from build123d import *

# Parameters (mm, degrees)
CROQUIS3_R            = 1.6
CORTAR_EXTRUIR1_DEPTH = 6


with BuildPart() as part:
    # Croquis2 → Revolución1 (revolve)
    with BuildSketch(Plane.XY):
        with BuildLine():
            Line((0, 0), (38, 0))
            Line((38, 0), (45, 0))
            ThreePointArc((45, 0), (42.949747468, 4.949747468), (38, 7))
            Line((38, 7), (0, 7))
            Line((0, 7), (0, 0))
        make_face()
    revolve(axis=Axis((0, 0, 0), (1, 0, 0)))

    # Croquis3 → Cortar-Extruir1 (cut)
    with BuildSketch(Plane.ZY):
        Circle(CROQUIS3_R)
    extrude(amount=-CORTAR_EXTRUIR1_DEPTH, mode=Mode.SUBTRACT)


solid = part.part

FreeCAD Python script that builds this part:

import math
import FreeCAD as App
import Part
import Sketcher

V = App.Vector

doc = App.newDocument("Part")
body = doc.addObject("PartDesign::Body", "Body")

sketch1 = doc.addObject("Sketcher::SketchObject", "Sketch")
body.addObject(sketch1)
sketch1.AttachmentSupport = (doc.XY_Plane, [""])
sketch1.MapMode = "FlatFace"
sketch1.addGeometry([
    Part.LineSegment(V(0, 0, 0), V(45, 0, 0)),
    Part.ArcOfCircle(Part.Circle(V(38, 0, 0), V(0, 0, 1), 7), math.radians(0), math.radians(90)),
    Part.LineSegment(V(38, 7, 0), V(0, 7, 0)),
    Part.LineSegment(V(0, 7, 0), V(0, 0, 0)),
], False)
sketch1.addConstraint([
    Sketcher.Constraint("Coincident", 0, 2, 1, 1),
    Sketcher.Constraint("Tangent", 1, 2, 2, 1),
    Sketcher.Constraint("Coincident", 2, 2, 3, 1),
    Sketcher.Constraint("Coincident", 3, 2, 0, 1),
    Sketcher.Constraint("Horizontal", 0),
    Sketcher.Constraint("Horizontal", 2),
    Sketcher.Constraint("Vertical", 3),
    Sketcher.Constraint("Coincident", 3, 2, -1, 1),
    Sketcher.Constraint("PointOnObject", 1, 3, -1),
    Sketcher.Constraint("Radius", 1, 7.0),
    Sketcher.Constraint("DistanceX", 0, 1, 0, 2, 45.0),
])
revolution = doc.addObject("PartDesign::Revolution", "Revolution")
body.addObject(revolution)
revolution.Profile = sketch1
revolution.ReferenceAxis = (sketch1, ["H_Axis"])
revolution.Angle = 360

sketch2 = doc.addObject("Sketcher::SketchObject", "Sketch001")
body.addObject(sketch2)
sketch2.AttachmentSupport = (doc.YZ_Plane, [""])
sketch2.MapMode = "FlatFace"
sketch2.addGeometry(Part.Circle(V(0, 0, 0), V(0, 0, 1), 1.6), False)
sketch2.addConstraint([
    Sketcher.Constraint("Coincident", 0, 3, -1, 1),
    Sketcher.Constraint("Diameter", 0, 3.2),
])
pocket1 = doc.addObject("PartDesign::Pocket", "Pocket")
body.addObject(pocket1)
pocket1.Profile = sketch2
pocket1.Length = 6
pocket1.Reversed = True

doc.recompute()
